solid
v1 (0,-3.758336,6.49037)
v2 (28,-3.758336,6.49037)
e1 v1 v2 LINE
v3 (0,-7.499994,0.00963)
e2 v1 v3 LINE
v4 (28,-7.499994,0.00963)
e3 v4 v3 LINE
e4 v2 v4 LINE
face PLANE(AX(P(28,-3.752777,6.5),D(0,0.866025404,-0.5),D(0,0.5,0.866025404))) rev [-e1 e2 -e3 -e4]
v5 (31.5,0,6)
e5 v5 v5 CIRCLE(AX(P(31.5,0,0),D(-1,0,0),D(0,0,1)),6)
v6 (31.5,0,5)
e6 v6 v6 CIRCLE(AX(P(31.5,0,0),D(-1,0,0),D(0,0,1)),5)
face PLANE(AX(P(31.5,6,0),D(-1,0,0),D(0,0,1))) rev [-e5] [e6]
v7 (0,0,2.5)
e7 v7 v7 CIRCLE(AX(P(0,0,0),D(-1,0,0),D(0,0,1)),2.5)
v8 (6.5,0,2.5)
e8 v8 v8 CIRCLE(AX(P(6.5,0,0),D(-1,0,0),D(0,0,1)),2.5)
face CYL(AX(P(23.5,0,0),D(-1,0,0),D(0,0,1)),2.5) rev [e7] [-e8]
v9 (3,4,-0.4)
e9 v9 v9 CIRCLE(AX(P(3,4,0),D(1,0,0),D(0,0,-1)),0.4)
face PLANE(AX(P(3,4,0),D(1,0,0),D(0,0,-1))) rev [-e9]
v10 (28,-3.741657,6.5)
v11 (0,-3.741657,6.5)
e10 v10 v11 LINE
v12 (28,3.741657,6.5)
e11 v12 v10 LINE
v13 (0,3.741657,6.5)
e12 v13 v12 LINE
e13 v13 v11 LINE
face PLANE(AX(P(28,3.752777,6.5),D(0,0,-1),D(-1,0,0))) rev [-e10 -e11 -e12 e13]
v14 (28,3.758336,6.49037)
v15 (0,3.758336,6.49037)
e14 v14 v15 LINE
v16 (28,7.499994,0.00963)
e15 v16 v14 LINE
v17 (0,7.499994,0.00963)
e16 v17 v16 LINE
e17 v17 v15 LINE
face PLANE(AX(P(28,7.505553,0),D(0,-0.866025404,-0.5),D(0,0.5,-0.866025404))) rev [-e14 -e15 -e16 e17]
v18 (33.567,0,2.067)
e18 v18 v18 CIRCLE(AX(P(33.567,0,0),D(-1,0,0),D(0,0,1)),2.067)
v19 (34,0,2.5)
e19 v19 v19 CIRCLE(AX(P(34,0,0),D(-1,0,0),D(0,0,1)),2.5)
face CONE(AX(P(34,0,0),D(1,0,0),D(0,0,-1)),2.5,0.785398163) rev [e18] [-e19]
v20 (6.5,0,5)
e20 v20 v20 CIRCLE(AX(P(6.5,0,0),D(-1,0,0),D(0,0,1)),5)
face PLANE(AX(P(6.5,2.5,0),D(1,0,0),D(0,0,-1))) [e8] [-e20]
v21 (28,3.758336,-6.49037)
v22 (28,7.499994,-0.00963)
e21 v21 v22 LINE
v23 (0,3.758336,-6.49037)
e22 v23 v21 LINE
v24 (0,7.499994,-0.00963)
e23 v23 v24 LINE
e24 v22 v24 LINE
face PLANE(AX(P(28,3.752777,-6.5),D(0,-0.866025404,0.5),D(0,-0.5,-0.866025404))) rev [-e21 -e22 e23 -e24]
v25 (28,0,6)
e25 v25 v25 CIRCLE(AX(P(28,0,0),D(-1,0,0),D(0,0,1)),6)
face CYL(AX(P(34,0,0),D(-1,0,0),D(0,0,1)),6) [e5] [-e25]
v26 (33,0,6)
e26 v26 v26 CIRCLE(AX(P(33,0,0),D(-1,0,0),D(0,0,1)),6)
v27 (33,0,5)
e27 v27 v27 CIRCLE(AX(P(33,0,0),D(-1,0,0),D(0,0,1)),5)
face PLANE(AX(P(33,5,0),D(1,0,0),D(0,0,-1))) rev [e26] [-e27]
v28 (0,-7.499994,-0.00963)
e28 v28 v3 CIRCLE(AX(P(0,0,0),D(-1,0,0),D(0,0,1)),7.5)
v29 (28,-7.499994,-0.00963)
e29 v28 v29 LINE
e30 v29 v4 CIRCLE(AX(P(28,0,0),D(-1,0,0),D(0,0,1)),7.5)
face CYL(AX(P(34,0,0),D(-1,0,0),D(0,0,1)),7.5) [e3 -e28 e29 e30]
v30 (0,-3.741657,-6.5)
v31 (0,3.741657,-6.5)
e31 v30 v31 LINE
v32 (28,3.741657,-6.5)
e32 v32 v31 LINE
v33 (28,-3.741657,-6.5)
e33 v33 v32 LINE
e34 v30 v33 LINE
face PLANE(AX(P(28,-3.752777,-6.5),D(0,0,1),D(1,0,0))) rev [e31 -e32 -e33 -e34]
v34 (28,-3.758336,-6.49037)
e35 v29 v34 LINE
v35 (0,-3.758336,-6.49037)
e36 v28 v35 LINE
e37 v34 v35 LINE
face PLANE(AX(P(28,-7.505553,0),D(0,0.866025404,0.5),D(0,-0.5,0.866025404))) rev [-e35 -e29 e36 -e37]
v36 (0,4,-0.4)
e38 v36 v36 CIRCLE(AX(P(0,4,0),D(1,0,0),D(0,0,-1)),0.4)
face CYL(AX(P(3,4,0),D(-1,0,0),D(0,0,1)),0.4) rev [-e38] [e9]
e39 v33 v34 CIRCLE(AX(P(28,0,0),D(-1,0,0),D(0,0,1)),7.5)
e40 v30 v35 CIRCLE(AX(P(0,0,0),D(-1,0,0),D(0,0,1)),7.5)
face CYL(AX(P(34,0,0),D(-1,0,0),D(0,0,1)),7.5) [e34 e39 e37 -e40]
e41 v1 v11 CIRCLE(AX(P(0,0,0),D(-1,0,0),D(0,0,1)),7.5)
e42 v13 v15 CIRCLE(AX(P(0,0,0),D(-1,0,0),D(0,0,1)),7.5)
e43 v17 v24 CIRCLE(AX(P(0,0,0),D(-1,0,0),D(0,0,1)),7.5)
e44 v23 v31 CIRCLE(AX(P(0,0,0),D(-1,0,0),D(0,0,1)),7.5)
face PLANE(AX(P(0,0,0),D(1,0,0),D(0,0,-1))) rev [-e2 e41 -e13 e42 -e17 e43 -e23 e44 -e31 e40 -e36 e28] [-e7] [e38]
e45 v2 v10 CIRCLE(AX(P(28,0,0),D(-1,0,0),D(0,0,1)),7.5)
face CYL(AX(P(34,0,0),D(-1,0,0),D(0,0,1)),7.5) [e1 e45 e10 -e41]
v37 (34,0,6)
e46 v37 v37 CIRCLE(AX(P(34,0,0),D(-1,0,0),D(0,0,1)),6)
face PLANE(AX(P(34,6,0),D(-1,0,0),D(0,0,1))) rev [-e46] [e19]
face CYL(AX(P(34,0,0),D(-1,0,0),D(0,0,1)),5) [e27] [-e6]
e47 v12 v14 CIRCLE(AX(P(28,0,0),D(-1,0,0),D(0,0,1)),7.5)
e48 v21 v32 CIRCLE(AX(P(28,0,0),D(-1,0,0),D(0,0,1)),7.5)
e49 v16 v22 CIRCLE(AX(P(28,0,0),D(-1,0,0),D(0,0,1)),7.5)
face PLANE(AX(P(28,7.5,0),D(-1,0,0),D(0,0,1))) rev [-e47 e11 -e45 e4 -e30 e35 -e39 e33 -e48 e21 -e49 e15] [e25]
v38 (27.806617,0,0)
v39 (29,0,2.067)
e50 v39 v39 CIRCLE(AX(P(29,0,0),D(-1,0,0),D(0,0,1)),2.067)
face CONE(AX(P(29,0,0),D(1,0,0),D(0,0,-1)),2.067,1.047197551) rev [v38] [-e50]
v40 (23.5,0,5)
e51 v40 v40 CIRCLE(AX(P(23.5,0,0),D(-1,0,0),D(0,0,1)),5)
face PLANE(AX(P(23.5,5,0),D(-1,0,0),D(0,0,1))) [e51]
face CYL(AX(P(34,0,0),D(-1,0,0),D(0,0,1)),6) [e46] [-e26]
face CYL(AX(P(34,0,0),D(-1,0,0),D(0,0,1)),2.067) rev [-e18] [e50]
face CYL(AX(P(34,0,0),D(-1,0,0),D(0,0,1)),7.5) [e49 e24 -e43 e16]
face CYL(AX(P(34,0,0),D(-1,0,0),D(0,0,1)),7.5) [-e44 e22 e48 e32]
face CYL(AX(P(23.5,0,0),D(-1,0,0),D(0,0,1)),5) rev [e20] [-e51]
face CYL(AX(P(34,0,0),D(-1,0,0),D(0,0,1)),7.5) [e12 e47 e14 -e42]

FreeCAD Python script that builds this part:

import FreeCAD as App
import Part
import Sketcher

V = App.Vector
Q = App.Units.Quantity


def add_polygon(sketch, points):
    """Adds a closed chain of lines whose ends are joined by coincident constraints."""
    first, n = sketch.GeometryCount, len(points)
    for a, b in zip(points, points[1:] + points[:1]):
        sketch.addGeometry(Part.LineSegment(App.Vector(*a, 0), App.Vector(*b, 0)), False)
    for i in range(n):
        sketch.addConstraint(Sketcher.Constraint("Coincident", first + i, 2, first + (i + 1) % n, 1))

doc = App.newDocument("Part")
body = doc.addObject("PartDesign::Body", "Body")

# Sketch on XY plane
sketch1 = body.newObject("Sketcher::SketchObject", "Sketch")
sketch1.AttachmentSupport = (doc.getObject("XY_Plane"), [""])
sketch1.MapMode = "FlatFace"
add_polygon(sketch1, [(0, 7.5), (0, 0), (34, 0), (34, 6), (33, 6), (33, 5), (31.5, 5), (31.5, 6), (28, 6), (28, 7.5)])  # lines 0-9
sketch1.addConstraint(Sketcher.Constraint("Vertical", 0))
sketch1.addConstraint(Sketcher.Constraint("Horizontal", 1))
sketch1.addConstraint(Sketcher.Constraint("Vertical", 2))
sketch1.addConstraint(Sketcher.Constraint("Horizontal", 3))
sketch1.addConstraint(Sketcher.Constraint("Vertical", 4))
sketch1.addConstraint(Sketcher.Constraint("Horizontal", 5))
sketch1.addConstraint(Sketcher.Constraint("Vertical", 6))
sketch1.addConstraint(Sketcher.Constraint("Horizontal", 7))
sketch1.addConstraint(Sketcher.Constraint("Vertical", 8))
sketch1.addConstraint(Sketcher.Constraint("Horizontal", 9))
sketch1.addConstraint(Sketcher.Constraint("Coincident", 0, 2, -1, 1))
sketch1.addConstraint(Sketcher.Constraint("Horizontal", 3, 2, 6, 2))
sketch1.addConstraint(Sketcher.Constraint("Equal", 3, 4))
sketch1.addConstraint(Sketcher.Constraint("Equal", 5, 8))
sketch1.addConstraint(Sketcher.Constraint("DistanceX", 1, 1, 1, 2, Q("34 mm")))
sketch1.addConstraint(Sketcher.Constraint("DistanceX", 3, 2, 3, 1, Q("1 mm")))
sketch1.addConstraint(Sketcher.Constraint("DistanceX", 9, 2, 9, 1, Q("28 mm")))
sketch1.addConstraint(Sketcher.Constraint("DistanceY", 2, 1, 2, 2, Q("6 mm")))
sketch1.addConstraint(Sketcher.Constraint("DistanceX", 5, 2, 5, 1, Q("1.5 mm")))
revolution = body.newObject("PartDesign::Revolution", "Revolution")
revolution.Profile = sketch1
revolution.ReferenceAxis = (sketch1, ["H_Axis"])
revolution.Angle = 360

# Sketch on XY plane
sketch2 = body.newObject("Sketcher::SketchObject", "Sketch001")
sketch2.AttachmentSupport = (doc.getObject("XY_Plane"), [""])
sketch2.MapMode = "FlatFace"
add_polygon(sketch2, [(0, 2.5), (0, 0), (23.5, 0), (23.5, 5), (6.5, 5), (6.5, 2.5)])  # lines 0-5
sketch2.addConstraint(Sketcher.Constraint("Vertical", 0))
sketch2.addConstraint(Sketcher.Constraint("Horizontal", 1))
sketch2.addConstraint(Sketcher.Constraint("Vertical", 2))
sketch2.addConstraint(Sketcher.Constraint("Horizontal", 3))
sketch2.addConstraint(Sketcher.Constraint("Vertical", 4))
sketch2.addConstraint(Sketcher.Constraint("Horizontal", 5))
sketch2.addConstraint(Sketcher.Constraint("Coincident", 0, 2, -1, 1))
sketch2.addConstraint(Sketcher.Constraint("Equal", 0, 4))
sketch2.addConstraint(Sketcher.Constraint("DistanceX", 3, 2, 3, 1, Q("17 mm")))
sketch2.addConstraint(Sketcher.Constraint("DistanceY", 2, 1, 2, 2, Q("5 mm")))
sketch2.addConstraint(Sketcher.Constraint("DistanceX", 1, 1, 1, 2, Q("23.5 mm")))
groove = body.newObject("PartDesign::Groove", "Groove")
groove.Profile = sketch2
groove.ReferenceAxis = (sketch2, ["H_Axis"])
groove.Angle = 360

# Sketch on XY plane
sketch3 = body.newObject("Sketcher::SketchObject", "Sketch002")
sketch3.AttachmentSupport = (doc.getObject("XY_Plane"), [""])
sketch3.MapMode = "FlatFace"
add_polygon(sketch3, [(29, 2.067), (27.806617, 0), (34, 0), (34, 2.5), (33.567, 2.067)])  # lines 0-4
sketch3.addConstraint(Sketcher.Constraint("Horizontal", 1))
sketch3.addConstraint(Sketcher.Constraint("Vertical", 2))
sketch3.addConstraint(Sketcher.Constraint("Horizontal", 4))
sketch3.addConstraint(Sketcher.Constraint("PointOnObject", 0, 2, -1))
sketch3.addConstraint(Sketcher.Constraint("Angle", 0, Q("-120 deg")))
sketch3.addConstraint(Sketcher.Constraint("Angle", 3, Q("-135 deg")))
sketch3.addConstraint(Sketcher.Constraint("DistanceY", 2, 1, 2, 2, Q("2.5 mm")))
sketch3.addConstraint(Sketcher.Constraint("DistanceX", -1, 1, 1, 2, Q("34 mm")))
sketch3.addConstraint(Sketcher.Constraint("DistanceX", -1, 1, 4, 2, Q("29 mm")))
sketch3.addConstraint(Sketcher.Constraint("DistanceX", 4, 2, 4, 1, Q("4.567 mm")))
groove2 = body.newObject("PartDesign::Groove", "Groove001")
groove2.Profile = sketch3
groove2.ReferenceAxis = (sketch3, ["H_Axis"])
groove2.Angle = 360

# Sketch on YZ plane
sketch4 = body.newObject("Sketcher::SketchObject", "Sketch003")
sketch4.AttachmentSupport = (doc.getObject("YZ_Plane"), [""])
sketch4.MapMode = "FlatFace"
sketch4.addGeometry(Part.Circle(V(0, 0, 0), V(0, 0, 1), 23.95878), False)  # 0
add_polygon(sketch4, [(-7.505553, 0), (-3.752777, 6.5), (3.752777, 6.5), (7.505553, 0), (3.752777, -6.5), (-3.752777, -6.5)])  # lines 1-6
sketch4.addConstraint(Sketcher.Constraint("Horizontal", 2))
sketch4.addConstraint(Sketcher.Constraint("Horizontal", 5))
sketch4.addConstraint(Sketcher.Constraint("Coincident", 0, 3, -1, 1))
sketch4.addConstraint(Sketcher.Constraint("Symmetric", 1, 2, 4, 2, -1, 1))
sketch4.addConstraint(Sketcher.Constraint("Symmetric", 3, 2, 6, 2, -1, 1))
sketch4.addConstraint(Sketcher.Constraint("PointOnObject", 3, 2, -1))
sketch4.addConstraint(Sketcher.Constraint("Parallel", 3, 6))
sketch4.addConstraint(Sketcher.Constraint("Vertical", 2, 2, 4, 2))
sketch4.addConstraint(Sketcher.Constraint("Angle", 1, Q("60 deg")))
sketch4.addConstraint(Sketcher.Constraint("DistanceY", 4, 2, 2, 2, Q("13 mm")))
sketch4.addConstraint(Sketcher.Constraint("Diameter", 0, Q("47.917559 mm")))
sketch4.addConstraint(Sketcher.Constraint("DistanceX", 2, 1, 2, 2, Q("7.505554 mm")))
pocket1 = body.newObject("PartDesign::Pocket", "Pocket")
pocket1.Profile = sketch4
pocket1.Length = 28
pocket1.Reversed = True

# Sketch on YZ plane
sketch5 = body.newObject("Sketcher::SketchObject", "Sketch004")
sketch5.AttachmentSupport = (doc.getObject("YZ_Plane"), [""])
sketch5.MapMode = "FlatFace"
sketch5.addGeometry(Part.Circle(V(4, 0, 0), V(0, 0, 1), 0.4), False)
sketch5.addConstraint(Sketcher.Constraint("PointOnObject", 0, 3, -1))
sketch5.addConstraint(Sketcher.Constraint("Diameter", 0, Q("0.8 mm")))
sketch5.addConstraint(Sketcher.Constraint("DistanceX", -1, 1, 0, 3, Q("4 mm")))
pocket2 = body.newObject("PartDesign::Pocket", "Pocket001")
pocket2.Profile = sketch5
pocket2.Length = 3
pocket2.Reversed = True

doc.recompute()
